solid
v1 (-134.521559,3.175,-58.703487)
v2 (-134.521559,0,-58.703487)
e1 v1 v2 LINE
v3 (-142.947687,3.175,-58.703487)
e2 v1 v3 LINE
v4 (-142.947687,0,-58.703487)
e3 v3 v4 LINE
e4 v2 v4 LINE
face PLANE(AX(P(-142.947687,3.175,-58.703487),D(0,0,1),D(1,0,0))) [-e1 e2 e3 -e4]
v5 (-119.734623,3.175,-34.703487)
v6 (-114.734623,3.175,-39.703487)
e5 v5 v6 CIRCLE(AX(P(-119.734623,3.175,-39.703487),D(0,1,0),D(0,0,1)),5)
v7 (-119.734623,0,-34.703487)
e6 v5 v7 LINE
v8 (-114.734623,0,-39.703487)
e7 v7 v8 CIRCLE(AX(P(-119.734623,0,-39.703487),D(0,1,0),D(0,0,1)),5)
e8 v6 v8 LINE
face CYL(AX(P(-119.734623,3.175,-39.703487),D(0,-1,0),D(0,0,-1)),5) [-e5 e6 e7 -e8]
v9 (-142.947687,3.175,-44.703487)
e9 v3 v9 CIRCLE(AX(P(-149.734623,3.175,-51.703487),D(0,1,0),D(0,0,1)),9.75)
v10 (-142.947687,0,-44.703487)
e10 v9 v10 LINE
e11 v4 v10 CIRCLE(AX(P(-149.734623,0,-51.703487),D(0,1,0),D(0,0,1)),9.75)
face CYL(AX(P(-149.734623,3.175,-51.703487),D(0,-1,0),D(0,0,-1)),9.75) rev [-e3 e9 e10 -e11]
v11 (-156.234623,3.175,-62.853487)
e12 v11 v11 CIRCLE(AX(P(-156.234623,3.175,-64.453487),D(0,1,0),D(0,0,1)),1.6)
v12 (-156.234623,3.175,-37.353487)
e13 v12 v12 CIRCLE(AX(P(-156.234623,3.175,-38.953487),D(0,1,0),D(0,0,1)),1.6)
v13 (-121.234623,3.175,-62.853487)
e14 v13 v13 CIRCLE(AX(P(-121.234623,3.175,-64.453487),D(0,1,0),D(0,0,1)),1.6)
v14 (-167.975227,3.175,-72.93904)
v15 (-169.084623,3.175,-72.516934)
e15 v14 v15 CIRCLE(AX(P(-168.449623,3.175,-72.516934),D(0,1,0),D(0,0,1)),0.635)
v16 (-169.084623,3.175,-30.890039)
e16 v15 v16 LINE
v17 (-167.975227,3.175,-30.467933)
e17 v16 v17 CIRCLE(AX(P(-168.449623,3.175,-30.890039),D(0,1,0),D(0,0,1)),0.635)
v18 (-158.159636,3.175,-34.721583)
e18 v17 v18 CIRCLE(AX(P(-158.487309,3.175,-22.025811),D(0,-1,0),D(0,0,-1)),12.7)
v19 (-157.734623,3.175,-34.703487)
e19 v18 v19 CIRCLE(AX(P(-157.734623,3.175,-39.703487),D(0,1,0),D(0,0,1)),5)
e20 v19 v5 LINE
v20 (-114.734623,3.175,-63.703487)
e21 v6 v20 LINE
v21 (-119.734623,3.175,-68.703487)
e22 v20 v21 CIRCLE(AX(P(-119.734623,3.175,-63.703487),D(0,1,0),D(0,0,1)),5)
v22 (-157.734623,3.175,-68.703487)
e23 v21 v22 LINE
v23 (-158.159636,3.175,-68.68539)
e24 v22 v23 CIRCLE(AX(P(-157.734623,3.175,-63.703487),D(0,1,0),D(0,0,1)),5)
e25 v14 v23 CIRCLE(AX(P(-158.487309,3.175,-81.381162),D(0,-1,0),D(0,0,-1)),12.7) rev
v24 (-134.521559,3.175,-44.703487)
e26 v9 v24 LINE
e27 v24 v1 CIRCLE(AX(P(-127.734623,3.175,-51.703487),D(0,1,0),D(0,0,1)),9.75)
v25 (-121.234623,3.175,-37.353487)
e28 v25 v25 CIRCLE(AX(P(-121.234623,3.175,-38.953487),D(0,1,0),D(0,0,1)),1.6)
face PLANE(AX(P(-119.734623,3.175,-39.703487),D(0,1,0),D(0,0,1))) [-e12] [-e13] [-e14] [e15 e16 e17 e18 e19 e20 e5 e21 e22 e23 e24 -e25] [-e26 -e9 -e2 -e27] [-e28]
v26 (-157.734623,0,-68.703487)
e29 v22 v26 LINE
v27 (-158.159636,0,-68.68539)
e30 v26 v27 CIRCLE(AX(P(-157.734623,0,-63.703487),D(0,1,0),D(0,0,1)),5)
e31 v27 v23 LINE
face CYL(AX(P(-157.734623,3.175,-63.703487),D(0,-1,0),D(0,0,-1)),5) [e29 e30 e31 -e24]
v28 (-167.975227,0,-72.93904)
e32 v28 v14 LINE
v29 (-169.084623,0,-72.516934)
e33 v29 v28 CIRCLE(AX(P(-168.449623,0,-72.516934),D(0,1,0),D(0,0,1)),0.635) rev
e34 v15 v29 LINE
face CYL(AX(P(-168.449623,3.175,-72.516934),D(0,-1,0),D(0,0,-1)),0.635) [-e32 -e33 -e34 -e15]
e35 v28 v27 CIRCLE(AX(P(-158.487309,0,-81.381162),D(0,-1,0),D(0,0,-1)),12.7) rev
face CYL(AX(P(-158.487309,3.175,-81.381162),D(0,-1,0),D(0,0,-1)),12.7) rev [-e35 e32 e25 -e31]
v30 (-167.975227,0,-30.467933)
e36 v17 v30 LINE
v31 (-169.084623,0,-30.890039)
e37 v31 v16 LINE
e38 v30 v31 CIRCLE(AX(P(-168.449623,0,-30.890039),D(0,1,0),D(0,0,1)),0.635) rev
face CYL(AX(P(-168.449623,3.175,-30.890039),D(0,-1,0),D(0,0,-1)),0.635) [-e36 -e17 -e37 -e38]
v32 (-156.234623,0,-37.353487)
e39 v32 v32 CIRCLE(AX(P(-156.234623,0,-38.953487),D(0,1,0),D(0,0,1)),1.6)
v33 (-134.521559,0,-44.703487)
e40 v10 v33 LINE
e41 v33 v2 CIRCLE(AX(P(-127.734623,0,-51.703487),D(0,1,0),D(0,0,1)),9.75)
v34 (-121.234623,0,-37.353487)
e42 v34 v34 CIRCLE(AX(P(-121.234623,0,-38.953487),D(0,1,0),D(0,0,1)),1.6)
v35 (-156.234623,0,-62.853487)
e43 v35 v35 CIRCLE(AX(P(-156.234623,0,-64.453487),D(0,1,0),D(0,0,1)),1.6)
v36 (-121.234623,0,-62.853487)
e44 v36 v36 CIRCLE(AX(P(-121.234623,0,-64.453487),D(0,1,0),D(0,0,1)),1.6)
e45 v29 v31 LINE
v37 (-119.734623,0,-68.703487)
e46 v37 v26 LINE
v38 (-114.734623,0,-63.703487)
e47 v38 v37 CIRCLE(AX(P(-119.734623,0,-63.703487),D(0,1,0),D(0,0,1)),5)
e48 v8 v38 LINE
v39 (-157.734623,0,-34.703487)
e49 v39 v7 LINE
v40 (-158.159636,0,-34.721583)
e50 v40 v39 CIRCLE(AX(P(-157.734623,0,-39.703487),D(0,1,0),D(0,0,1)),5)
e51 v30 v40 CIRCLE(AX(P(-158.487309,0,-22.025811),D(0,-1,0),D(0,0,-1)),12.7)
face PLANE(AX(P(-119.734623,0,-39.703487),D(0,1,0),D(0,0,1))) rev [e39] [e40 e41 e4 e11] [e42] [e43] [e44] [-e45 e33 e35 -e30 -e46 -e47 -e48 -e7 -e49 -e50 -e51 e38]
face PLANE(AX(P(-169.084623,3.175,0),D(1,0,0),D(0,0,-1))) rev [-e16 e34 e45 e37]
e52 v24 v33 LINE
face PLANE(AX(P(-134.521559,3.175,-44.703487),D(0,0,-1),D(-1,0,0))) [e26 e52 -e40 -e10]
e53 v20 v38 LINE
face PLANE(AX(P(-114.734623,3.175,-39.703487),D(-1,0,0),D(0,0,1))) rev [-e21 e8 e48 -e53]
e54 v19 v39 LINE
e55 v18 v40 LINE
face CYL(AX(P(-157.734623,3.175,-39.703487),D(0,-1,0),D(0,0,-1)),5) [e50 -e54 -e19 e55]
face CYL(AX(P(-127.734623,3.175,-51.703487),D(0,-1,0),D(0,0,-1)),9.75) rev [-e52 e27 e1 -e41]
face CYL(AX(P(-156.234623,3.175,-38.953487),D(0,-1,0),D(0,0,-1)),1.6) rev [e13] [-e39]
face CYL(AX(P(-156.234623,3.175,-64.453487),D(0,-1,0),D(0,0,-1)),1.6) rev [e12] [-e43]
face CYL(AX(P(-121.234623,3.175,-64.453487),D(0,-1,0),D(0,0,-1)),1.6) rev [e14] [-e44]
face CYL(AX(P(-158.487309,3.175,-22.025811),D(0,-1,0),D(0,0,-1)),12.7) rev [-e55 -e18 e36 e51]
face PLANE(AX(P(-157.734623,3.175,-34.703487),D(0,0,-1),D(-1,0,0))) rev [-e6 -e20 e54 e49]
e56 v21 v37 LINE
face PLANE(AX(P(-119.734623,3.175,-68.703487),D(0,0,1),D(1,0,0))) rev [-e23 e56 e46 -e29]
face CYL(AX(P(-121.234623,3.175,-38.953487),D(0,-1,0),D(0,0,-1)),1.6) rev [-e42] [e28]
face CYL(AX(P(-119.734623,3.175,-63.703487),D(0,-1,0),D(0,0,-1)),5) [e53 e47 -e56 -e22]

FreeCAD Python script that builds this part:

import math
import FreeCAD as App
import Part
import Sketcher
from FreeCAD import Vector
Q = App.Units.Quantity


def edges_at(feature, points):
    """Names of the edges that pass closest to the given points."""
    edges = feature.Shape.Edges
    near = lambda p: min(range(len(edges)), key=lambda i: edges[i].distToShape(Part.Vertex(*p))[0])
    return sorted({f"Edge{near(p) + 1}" for p in points})

doc = App.newDocument("Part")
body = doc.addObject("PartDesign::Body", "Body")

sketch1 = body.newObject("Sketcher::SketchObject", "Sketch")
sketch1.AttachmentSupport = (doc.getObject("XZ_Plane"), [""])
sketch1.MapMode = "FlatFace"
sketch1.addGeometry([
    Part.LineSegment(Vector(-157.7, -34.7, 0), Vector(-119.7, -34.7, 0)),
    Part.ArcOfCircle(Part.Circle(Vector(-119.7, -39.7, 0), Vector(0, 0, 1), 5), math.radians(0), math.radians(90)),
    Part.LineSegment(Vector(-114.7, -39.7, 0), Vector(-114.7, -63.7, 0)),
    Part.ArcOfCircle(Part.Circle(Vector(-119.7, -63.7, 0), Vector(0, 0, 1), 5), math.radians(-90), math.radians(0)),
    Part.LineSegment(Vector(-119.7, -68.7, 0), Vector(-157.7, -68.7, 0)),
    Part.ArcOfCircle(Part.Circle(Vector(-157.7, -63.7, 0), Vector(0, 0, 1), 5), math.radians(180), math.radians(270)),
    Part.LineSegment(Vector(-162.7, -63.7, 0), Vector(-162.7, -39.7, 0)),
    Part.ArcOfCircle(Part.Circle(Vector(-157.7, -39.7, 0), Vector(0, 0, 1), 5), math.radians(90), math.radians(180)),
    Part.Circle(Vector(-156.2, -39, 0), Vector(0, 0, 1), 1.6),
    Part.Circle(Vector(-121.2, -39, 0), Vector(0, 0, 1), 1.6),
    Part.Circle(Vector(-156.2, -64.5, 0), Vector(0, 0, 1), 1.6),
    Part.ArcOfCircle(Part.Circle(Vector(-127.7, -51.7, 0), Vector(0, 0, 1), 9.7), math.radians(90), math.radians(134)),
    Part.LineSegment(Vector(-134.5, -44.7, 0), Vector(-142.9, -44.7, 0)),
    Part.ArcOfCircle(Part.Circle(Vector(-149.7, -51.7, 0), Vector(0, 0, 1), 9.7), math.radians(46), math.radians(90)),
    Part.ArcOfCircle(Part.Circle(Vector(-149.7, -51.7, 0), Vector(0, 0, 1), 9.8), math.radians(90), math.radians(270)),
    Part.ArcOfCircle(Part.Circle(Vector(-149.7, -51.7, 0), Vector(0, 0, 1), 9.7), math.radians(-90), math.radians(-46)),
    Part.LineSegment(Vector(-142.9, -58.7, 0), Vector(-134.5, -58.7, 0)),
    Part.ArcOfCircle(Part.Circle(Vector(-127.7, -51.7, 0), Vector(0, 0, 1), 9.7), math.radians(-134), math.radians(-90)),
    Part.ArcOfCircle(Part.Circle(Vector(-127.7, -51.7, 0), Vector(0, 0, 1), 9.8), math.radians(-90), math.radians(90)),
    Part.Circle(Vector(-121.2, -64.5, 0), Vector(0, 0, 1), 1.6),
], False)
sketch1.addConstraint([
    Sketcher.Constraint("Tangent", 0, 2, 1, 2),
    Sketcher.Constraint("Tangent", 1, 1, 2, 1),
    Sketcher.Constraint("Tangent", 2, 2, 3, 2),
    Sketcher.Constraint("Tangent", 3, 1, 4, 1),
    Sketcher.Constraint("Tangent", 4, 2, 5, 2),
    Sketcher.Constraint("Tangent", 5, 1, 6, 1),
    Sketcher.Constraint("Tangent", 6, 2, 7, 2),
    Sketcher.Constraint("Tangent", 7, 1, 0, 1),
    Sketcher.Constraint("Coincident", 11, 2, 12, 1),
    Sketcher.Constraint("Coincident", 12, 2, 13, 1),
    Sketcher.Constraint("Tangent", 13, 2, 14, 1),
    Sketcher.Constraint("Tangent", 14, 2, 15, 1),
    Sketcher.Constraint("Coincident", 15, 2, 16, 1),
    Sketcher.Constraint("Coincident", 16, 2, 17, 1),
    Sketcher.Constraint("Tangent", 17, 2, 18, 1),
    Sketcher.Constraint("Tangent", 18, 2, 11, 1),
    Sketcher.Constraint("Horizontal", 0),
    Sketcher.Constraint("Vertical", 2),
    Sketcher.Constraint("Horizontal", 4),
    Sketcher.Constraint("Vertical", 6),
    Sketcher.Constraint("Horizontal", 12),
    Sketcher.Constraint("Horizontal", 16),
    Sketcher.Constraint("Equal", 1, 3),
    Sketcher.Constraint("Equal", 3, 5),
    Sketcher.Constraint("Equal", 5, 7),
    Sketcher.Constraint("Equal", 8, 9),
    Sketcher.Constraint("Equal", 9, 10),
    Sketcher.Constraint("Equal", 11, 13),
    Sketcher.Constraint("Equal", 13, 14),
    Sketcher.Constraint("Equal", 14, 15),
    Sketcher.Constraint("Equal", 15, 17),
    Sketcher.Constraint("Equal", 17, 18),
    Sketcher.Constraint("Equal", 10, 19),
    Sketcher.Constraint("Horizontal", 8, 3, 9, 3),
    Sketcher.Constraint("Horizontal", 11, 3, 13, 3),
    Sketcher.Constraint("Horizontal", 10, 3, 19, 3),
    Sketcher.Constraint("Vertical", 8, 3, 10, 3),
    Sketcher.Constraint("Vertical", 9, 3, 19, 3),
    Sketcher.Constraint("Vertical", 15, 3, 13, 2),
    Sketcher.Constraint("Vertical", 13, 2, 14, 2),
    Sketcher.Constraint("Vertical", 12, 2, 15, 2),
    Sketcher.Constraint("Vertical", 18, 3, 17, 2),
    Sketcher.Constraint("Vertical", 17, 2, 18, 2),
    Sketcher.Constraint("Radius", 1, Q("5 mm")),
    Sketcher.Constraint("Diameter", 8, Q("3.2 mm")),
    Sketcher.Constraint("DistanceX", 0, 1, 0, 2, Q("38 mm")),
    Sketcher.Constraint("DistanceY", 2, 2, 2, 1, Q("24 mm")),
    Sketcher.Constraint("Radius", 11, Q("9.75 mm")),
    Sketcher.Constraint("DistanceX", 8, 3, 9, 3, Q("35 mm")),
    Sketcher.Constraint("DistanceX", 11, 3, 1, 3, Q("8 mm")),
    Sketcher.Constraint("DistanceY", 11, 3, 1, 3, Q("12 mm")),
    Sketcher.Constraint("DistanceX", 7, 3, 13, 3, Q("8 mm")),
    Sketcher.Constraint("DistanceY", 11, 3, 11, 2, Q("7 mm")),
    Sketcher.Constraint("DistanceY", 13, 2, 8, 3, Q("3 mm")),
    Sketcher.Constraint("DistanceY", 10, 3, 14, 2, Q("3 mm")),
    Sketcher.Constraint("DistanceX", 7, 3, 8, 3, Q("1.5 mm")),
    Sketcher.Constraint("DistanceX", 11, 2, -1, 1, Q("134.521558 mm")),
    Sketcher.Constraint("DistanceY", 1, 3, -1, 1, Q("39.703487 mm")),
])
pad1 = body.newObject("PartDesign::Pad", "Pad")
pad1.Profile = sketch1
pad1.Length = 3.175
pad1.Reversed = True

sketch2 = body.newObject("Sketcher::SketchObject", "Sketch001")
sketch2.AttachmentSupport = (doc.getObject("XZ_Plane"), [""])
sketch2.MapMode = "FlatFace"
sketch2.addGeometry([
    Part.LineSegment(Vector(-169.1, -29, 0), Vector(-169.1, -74.4, 0)),
    Part.ArcOfCircle(Part.Circle(Vector(-158.5, -81.4, 0), Vector(0, 0, 1), 12.7), math.radians(89), math.radians(147)),
    Part.ArcOfCircle(Part.Circle(Vector(-157.7, -63.7, 0), Vector(0, 0, 1), 5), math.radians(180), math.radians(265)),
    Part.LineSegment(Vector(-162.7, -63.7, 0), Vector(-162.7, -39.7, 0)),
    Part.ArcOfCircle(Part.Circle(Vector(-157.7, -39.7, 0), Vector(0, 0, 1), 5), math.radians(95), math.radians(180)),
    Part.ArcOfCircle(Part.Circle(Vector(-158.5, -22, 0), Vector(0, 0, 1), 12.7), math.radians(-147), math.radians(-89)),
], False)
sketch2.addConstraint([
    Sketcher.Constraint("Coincident", 0, 2, 1, 2),
    Sketcher.Constraint("Coincident", 1, 1, 2, 2),
    Sketcher.Constraint("Tangent", 2, 1, 3, 1),
    Sketcher.Constraint("Tangent", 3, 2, 4, 2),
    Sketcher.Constraint("Coincident", 4, 1, 5, 2),
    Sketcher.Constraint("Coincident", 5, 1, 0, 1),
    Sketcher.Constraint("Vertical", 0),
    Sketcher.Constraint("Vertical", 3),
    Sketcher.Constraint("Equal", 2, 4),
    Sketcher.Constraint("Equal", 1, 5),
    Sketcher.Constraint("Vertical", 1, 3, 5, 3),
    Sketcher.Constraint("Vertical", 1, 1, 4, 1),
    Sketcher.Constraint("Radius", 2, Q("5 mm")),
    Sketcher.Constraint("Radius", 1, Q("12.7 mm")),
    Sketcher.Constraint("DistanceY", 3, 1, 3, 2, Q("24 mm")),
    Sketcher.Constraint("DistanceX", 0, 2, 2, 3, Q("11.35 mm")),
    Sketcher.Constraint("DistanceY", 0, 2, 0, 1, Q("45.357215 mm")),
    Sketcher.Constraint("DistanceX", 1, 3, -1, 1, Q("158.487309 mm")),
    Sketcher.Constraint("DistanceY", 5, 3, -1, 1, Q("22.025811 mm")),
    Sketcher.Constraint("DistanceY", 1, 1, -1, 1, Q("68.68539 mm")),
])
pad2 = body.newObject("PartDesign::Pad", "Pad001")
pad2.Profile = sketch2
pad2.Length = 3.175
pad2.Reversed = True
doc.recompute()

fillet = body.newObject("PartDesign::Fillet", "Fillet")
fillet.Base = (pad2, edges_at(pad2, [(-169.085, 1.587, -74.382), (-169.085, 1.587, -29.025)]))
fillet.Radius = 0.635

doc.recompute()
